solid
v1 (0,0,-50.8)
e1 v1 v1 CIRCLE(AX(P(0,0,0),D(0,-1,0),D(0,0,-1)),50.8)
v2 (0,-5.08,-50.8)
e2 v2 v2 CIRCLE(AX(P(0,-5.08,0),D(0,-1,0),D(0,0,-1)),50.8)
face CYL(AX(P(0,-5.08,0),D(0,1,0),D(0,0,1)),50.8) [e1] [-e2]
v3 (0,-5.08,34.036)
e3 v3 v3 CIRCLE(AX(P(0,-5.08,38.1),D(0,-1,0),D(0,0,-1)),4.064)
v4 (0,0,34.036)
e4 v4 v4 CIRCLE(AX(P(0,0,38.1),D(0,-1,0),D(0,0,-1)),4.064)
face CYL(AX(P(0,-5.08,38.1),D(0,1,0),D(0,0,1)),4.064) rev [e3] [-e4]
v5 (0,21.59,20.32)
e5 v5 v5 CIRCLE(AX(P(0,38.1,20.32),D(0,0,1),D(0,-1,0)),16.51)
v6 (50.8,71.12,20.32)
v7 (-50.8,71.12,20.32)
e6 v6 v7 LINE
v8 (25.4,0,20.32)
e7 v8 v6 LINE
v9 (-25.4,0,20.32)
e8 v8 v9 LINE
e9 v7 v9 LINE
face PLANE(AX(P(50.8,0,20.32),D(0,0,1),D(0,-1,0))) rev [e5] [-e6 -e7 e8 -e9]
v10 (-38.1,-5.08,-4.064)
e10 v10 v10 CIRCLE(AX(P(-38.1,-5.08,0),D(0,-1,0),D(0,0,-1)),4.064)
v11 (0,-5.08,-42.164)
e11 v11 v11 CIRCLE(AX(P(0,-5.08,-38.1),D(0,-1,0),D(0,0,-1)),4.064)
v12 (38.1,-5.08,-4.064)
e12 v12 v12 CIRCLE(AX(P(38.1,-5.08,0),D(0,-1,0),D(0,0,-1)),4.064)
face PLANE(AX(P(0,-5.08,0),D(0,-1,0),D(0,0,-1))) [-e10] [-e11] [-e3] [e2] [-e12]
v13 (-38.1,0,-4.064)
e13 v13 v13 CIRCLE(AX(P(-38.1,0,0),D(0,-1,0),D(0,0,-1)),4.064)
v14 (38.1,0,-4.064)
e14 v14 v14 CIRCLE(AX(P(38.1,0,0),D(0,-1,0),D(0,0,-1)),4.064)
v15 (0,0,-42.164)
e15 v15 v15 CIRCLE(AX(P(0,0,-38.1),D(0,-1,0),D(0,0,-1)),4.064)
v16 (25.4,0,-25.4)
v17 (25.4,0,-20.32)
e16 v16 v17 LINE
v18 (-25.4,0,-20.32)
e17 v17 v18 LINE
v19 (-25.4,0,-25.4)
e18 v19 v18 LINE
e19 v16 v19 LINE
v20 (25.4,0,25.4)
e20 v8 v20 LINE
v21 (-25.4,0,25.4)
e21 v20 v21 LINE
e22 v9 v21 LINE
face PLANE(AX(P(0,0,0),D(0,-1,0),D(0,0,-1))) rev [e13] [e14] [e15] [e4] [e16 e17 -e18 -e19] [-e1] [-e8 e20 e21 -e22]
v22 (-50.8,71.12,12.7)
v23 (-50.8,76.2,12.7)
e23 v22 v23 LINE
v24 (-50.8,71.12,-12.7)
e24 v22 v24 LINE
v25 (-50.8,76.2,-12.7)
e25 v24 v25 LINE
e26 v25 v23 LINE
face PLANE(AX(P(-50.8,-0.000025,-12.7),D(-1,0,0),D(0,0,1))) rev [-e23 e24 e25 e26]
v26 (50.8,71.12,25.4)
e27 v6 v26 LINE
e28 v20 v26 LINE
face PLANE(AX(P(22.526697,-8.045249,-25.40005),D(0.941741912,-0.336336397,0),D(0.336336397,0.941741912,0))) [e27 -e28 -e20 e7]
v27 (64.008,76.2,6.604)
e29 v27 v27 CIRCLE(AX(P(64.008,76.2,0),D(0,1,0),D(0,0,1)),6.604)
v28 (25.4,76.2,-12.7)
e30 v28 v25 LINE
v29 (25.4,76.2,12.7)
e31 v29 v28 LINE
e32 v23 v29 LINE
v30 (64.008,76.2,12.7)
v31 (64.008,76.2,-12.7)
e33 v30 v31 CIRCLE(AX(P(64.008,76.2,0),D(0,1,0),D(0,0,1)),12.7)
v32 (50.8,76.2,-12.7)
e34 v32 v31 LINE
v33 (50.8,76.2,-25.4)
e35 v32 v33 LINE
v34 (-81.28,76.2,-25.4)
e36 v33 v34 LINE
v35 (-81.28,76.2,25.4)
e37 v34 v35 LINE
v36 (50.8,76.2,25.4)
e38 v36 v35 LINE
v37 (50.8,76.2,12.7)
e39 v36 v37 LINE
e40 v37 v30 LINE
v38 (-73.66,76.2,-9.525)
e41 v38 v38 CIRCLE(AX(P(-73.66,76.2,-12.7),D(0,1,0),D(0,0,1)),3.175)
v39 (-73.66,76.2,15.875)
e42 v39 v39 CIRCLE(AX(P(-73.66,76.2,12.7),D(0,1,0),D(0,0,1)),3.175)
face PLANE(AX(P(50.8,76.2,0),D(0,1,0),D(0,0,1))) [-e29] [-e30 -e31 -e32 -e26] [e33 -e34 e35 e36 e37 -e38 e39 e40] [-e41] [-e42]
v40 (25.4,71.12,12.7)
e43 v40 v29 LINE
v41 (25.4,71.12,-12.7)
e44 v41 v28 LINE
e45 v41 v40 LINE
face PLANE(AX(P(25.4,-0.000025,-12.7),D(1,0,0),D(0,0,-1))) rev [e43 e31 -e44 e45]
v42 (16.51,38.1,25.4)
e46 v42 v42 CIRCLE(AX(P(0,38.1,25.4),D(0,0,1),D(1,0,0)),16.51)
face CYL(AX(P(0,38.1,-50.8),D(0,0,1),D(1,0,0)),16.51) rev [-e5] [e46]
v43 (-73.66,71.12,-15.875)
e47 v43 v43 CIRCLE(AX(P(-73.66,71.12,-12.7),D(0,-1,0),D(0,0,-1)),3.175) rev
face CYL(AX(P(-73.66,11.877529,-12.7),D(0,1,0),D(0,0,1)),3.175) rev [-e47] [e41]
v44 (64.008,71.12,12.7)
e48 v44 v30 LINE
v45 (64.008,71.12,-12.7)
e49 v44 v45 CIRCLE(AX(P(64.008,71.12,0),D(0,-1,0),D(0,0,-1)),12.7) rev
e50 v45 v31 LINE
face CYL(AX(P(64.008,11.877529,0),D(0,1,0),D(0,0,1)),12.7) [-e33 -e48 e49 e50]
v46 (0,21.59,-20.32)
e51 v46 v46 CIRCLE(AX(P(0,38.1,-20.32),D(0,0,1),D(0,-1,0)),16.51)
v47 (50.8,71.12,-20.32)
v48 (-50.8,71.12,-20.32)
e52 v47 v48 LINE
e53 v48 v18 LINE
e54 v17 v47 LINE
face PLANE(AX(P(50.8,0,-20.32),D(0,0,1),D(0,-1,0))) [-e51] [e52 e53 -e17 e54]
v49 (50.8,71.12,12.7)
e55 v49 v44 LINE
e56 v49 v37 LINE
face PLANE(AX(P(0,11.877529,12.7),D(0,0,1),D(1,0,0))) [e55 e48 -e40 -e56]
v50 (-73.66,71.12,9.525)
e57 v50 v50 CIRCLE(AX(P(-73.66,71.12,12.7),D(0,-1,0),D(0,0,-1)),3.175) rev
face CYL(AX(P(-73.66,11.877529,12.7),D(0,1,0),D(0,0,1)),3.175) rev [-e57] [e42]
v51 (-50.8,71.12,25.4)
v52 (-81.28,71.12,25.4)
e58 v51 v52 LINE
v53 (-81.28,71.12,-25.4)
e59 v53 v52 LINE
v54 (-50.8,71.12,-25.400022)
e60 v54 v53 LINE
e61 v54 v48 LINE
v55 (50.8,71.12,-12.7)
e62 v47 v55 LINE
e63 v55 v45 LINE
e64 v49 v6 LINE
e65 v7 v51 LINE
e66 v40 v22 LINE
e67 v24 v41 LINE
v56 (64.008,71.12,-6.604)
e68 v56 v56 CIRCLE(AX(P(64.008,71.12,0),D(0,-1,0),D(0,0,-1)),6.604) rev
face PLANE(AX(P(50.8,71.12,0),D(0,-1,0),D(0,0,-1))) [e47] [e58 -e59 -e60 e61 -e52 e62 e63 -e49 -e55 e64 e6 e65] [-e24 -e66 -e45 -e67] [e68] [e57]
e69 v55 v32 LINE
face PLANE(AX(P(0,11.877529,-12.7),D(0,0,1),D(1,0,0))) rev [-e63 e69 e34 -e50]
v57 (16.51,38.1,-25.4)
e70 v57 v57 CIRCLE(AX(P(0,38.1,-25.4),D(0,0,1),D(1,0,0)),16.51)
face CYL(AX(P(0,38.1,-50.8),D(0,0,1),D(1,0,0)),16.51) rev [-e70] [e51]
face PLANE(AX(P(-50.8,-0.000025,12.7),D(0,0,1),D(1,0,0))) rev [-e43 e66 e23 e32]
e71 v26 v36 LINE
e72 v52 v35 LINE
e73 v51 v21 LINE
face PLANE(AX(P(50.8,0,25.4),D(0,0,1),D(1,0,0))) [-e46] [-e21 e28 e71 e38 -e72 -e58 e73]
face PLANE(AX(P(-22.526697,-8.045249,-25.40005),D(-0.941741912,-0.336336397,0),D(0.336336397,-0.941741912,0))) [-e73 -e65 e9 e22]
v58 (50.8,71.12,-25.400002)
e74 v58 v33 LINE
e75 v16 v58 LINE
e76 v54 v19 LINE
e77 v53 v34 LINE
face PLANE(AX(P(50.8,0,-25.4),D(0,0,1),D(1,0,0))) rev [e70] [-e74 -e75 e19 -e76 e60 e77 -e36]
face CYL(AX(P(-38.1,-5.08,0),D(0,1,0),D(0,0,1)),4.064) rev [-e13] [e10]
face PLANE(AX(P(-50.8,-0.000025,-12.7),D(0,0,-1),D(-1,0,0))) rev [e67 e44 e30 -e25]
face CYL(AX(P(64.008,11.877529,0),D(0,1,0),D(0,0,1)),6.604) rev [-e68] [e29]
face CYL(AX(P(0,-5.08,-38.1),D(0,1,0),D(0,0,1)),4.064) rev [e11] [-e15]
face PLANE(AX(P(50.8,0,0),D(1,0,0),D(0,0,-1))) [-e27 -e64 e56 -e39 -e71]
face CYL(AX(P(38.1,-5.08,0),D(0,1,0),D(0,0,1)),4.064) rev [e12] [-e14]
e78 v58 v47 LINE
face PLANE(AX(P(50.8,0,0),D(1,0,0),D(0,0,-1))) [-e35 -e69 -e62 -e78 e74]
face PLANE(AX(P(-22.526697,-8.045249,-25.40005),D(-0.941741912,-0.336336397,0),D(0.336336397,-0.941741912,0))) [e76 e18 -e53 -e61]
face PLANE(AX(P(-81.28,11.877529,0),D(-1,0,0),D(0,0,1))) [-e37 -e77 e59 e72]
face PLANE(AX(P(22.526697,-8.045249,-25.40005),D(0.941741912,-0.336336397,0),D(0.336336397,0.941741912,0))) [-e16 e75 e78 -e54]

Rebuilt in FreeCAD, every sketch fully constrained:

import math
import FreeCAD as App
import Part
import Sketcher
Q = App.Units.Quantity


def add_polygon(sketch, points):
    """Adds a closed chain of lines whose ends are joined by coincident constraints."""
    first, n = sketch.GeometryCount, len(points)
    for a, b in zip(points, points[1:] + points[:1]):
        sketch.addGeometry(Part.LineSegment(App.Vector(*a, 0), App.Vector(*b, 0)), False)
    for i in range(n):
        sketch.addConstraint(Sketcher.Constraint("Coincident", first + i, 2, first + (i + 1) % n, 1))

doc = App.newDocument("Part")
body = doc.addObject("PartDesign::Body", "Body")

# Sketch on YZ plane
sketch1 = doc.addObject("Sketcher::SketchObject", "Sketch")
body.addObject(sketch1)
sketch1.AttachmentSupport = (doc.YZ_Plane, [""])
sketch1.MapMode = "FlatFace"
add_polygon(sketch1, [(0, 25.4), (0, 20.32), (71.12, 20.32), (71.12, -20.32), (0, -20.32), (0, -25.4), (76.2, -25.4), (76.2, 25.4)])  # lines 0-7
sketch1.addConstraint(Sketcher.Constraint("Vertical", 0))
sketch1.addConstraint(Sketcher.Constraint("Horizontal", 1))
sketch1.addConstraint(Sketcher.Constraint("Vertical", 2))
sketch1.addConstraint(Sketcher.Constraint("Horizontal", 3))
sketch1.addConstraint(Sketcher.Constraint("Vertical", 4))
sketch1.addConstraint(Sketcher.Constraint("Horizontal", 5))
sketch1.addConstraint(Sketcher.Constraint("Vertical", 6))
sketch1.addConstraint(Sketcher.Constraint("Horizontal", 7))
sketch1.addConstraint(Sketcher.Constraint("Symmetric", 0, 2, 3, 2, -1, 1))
sketch1.addConstraint(Sketcher.Constraint("Symmetric", 4, 2, 7, 2, -1))
sketch1.addConstraint(Sketcher.Constraint("DistanceX", 5, 1, 5, 2, Q("3 in")))
sketch1.addConstraint(Sketcher.Constraint("DistanceY", 6, 1, 6, 2, Q("2 in")))
sketch1.addConstraint(Sketcher.Constraint("DistanceX", 1, 1, 1, 2, Q("2.8 in")))
sketch1.addConstraint(Sketcher.Constraint("DistanceY", 0, 2, 0, 1, Q("0.2 in")))
pad1 = doc.addObject("PartDesign::Pad", "Pad")
body.addObject(pad1)
pad1.Profile = sketch1
pad1.Length = Q("4 in")
pad1.Midplane = True

# Sketch on XZ plane
sketch2 = doc.addObject("Sketcher::SketchObject", "Sketch001")
body.addObject(sketch2)
sketch2.AttachmentSupport = (doc.XZ_Plane, [""])
sketch2.MapMode = "FlatFace"
sketch2.AttachmentOffset = App.Placement(App.Vector(0, 0, -3 * 25.4), App.Rotation())
add_polygon(sketch2, [(-81.28, -25.4), (-81.28, 25.4), (-50.8, 25.4), (-50.8, -25.4)])  # lines 0-3
sketch2.addGeometry(Part.Circle(App.Vector(-73.66, 12.7, 0), App.Vector(0, 0, 1), 3.175), False)  # 4
sketch2.addGeometry(Part.Circle(App.Vector(-73.66, -12.7, 0), App.Vector(0, 0, 1), 3.175), False)  # 5
sketch2.addGeometry(Part.LineSegment(App.Vector(64.008, -12.7, 0), App.Vector(50.8, -12.7, 0)), False)  # 6
sketch2.addGeometry(Part.LineSegment(App.Vector(50.8, -12.7, 0), App.Vector(50.8, 12.7, 0)), False)  # 7
sketch2.addGeometry(Part.LineSegment(App.Vector(50.8, 12.7, 0), App.Vector(64.008, 12.7, 0)), False)  # 8
sketch2.addGeometry(Part.ArcOfCircle(Part.Circle(App.Vector(64.008, 0, 0), App.Vector(0, 0, 1), 12.7), math.radians(-90), math.radians(90)), False)  # 9
sketch2.addGeometry(Part.Circle(App.Vector(64.008, 0, 0), App.Vector(0, 0, 1), 6.604), False)  # 10
sketch2.addConstraint(Sketcher.Constraint("Coincident", 6, 2, 7, 1))
sketch2.addConstraint(Sketcher.Constraint("Coincident", 7, 2, 8, 1))
sketch2.addConstraint(Sketcher.Constraint("Tangent", 8, 2, 9, 2))
sketch2.addConstraint(Sketcher.Constraint("Tangent", 9, 1, 6, 1))
sketch2.addConstraint(Sketcher.Constraint("Vertical", 0))
sketch2.addConstraint(Sketcher.Constraint("Horizontal", 1))
sketch2.addConstraint(Sketcher.Constraint("Vertical", 2))
sketch2.addConstraint(Sketcher.Constraint("Horizontal", 3))
sketch2.addConstraint(Sketcher.Constraint("Horizontal", 6))
sketch2.addConstraint(Sketcher.Constraint("Vertical", 7))
sketch2.addConstraint(Sketcher.Constraint("Horizontal", 8))
sketch2.addConstraint(Sketcher.Constraint("Coincident", 10, 3, 9, 3))
sketch2.addConstraint(Sketcher.Constraint("Equal", 4, 5))
sketch2.addConstraint(Sketcher.Constraint("Symmetric", 4, 3, 5, 3, -1))
sketch2.addConstraint(Sketcher.Constraint("PointOnObject", 9, 3, -1))
sketch2.addConstraint(Sketcher.Constraint("Horizontal", 5, 3, 6, 2))
sketch2.addConstraint(Sketcher.Constraint("Radius", 9, Q("0.5 in")))
sketch2.addConstraint(Sketcher.Constraint("Diameter", 4, Q("0.25 in")))
sketch2.addConstraint(Sketcher.Constraint("Diameter", 10, Q("0.52 in")))
sketch2.addConstraint(Sketcher.Constraint("DistanceY", 0, 1, 0, 2, Q("2 in")))
sketch2.addConstraint(Sketcher.Constraint("DistanceX", 1, 1, 1, 2, Q("1.2 in")))
sketch2.addConstraint(Sketcher.Constraint("DistanceY", -1, 1, 0, 2, Q("1 in")))
sketch2.addConstraint(Sketcher.Constraint("DistanceX", 1, 2, -1, 1, Q("2 in")))
sketch2.addConstraint(Sketcher.Constraint("DistanceX", -1, 1, 6, 2, Q("2 in")))
sketch2.addConstraint(Sketcher.Constraint("DistanceX", 6, 2, 6, 1, Q("0.52 in")))
sketch2.addConstraint(Sketcher.Constraint("DistanceX", 4, 3, -1, 1, Q("2.9 in")))
pad2 = doc.addObject("PartDesign::Pad", "Pad001")
body.addObject(pad2)
pad2.Profile = sketch2
pad2.Length = Q("0.2 in")

# Sketch on XZ plane
sketch3 = doc.addObject("Sketcher::SketchObject", "Sketch002")
body.addObject(sketch3)
sketch3.AttachmentSupport = (doc.XZ_Plane, [""])
sketch3.MapMode = "FlatFace"
sketch3.AttachmentOffset = App.Placement(App.Vector(0, 0, -3 * 25.4), App.Rotation())
add_polygon(sketch3, [(-50.8, -12.7), (-50.8, 12.7), (25.4, 12.7), (25.4, -12.7)])  # lines 0-3
sketch3.addConstraint(Sketcher.Constraint("Vertical", 0))
sketch3.addConstraint(Sketcher.Constraint("Horizontal", 1))
sketch3.addConstraint(Sketcher.Constraint("Vertical", 2))
sketch3.addConstraint(Sketcher.Constraint("Horizontal", 3))
sketch3.addConstraint(Sketcher.Constraint("DistanceX", 1, 1, 1, 2, Q("3 in")))
sketch3.addConstraint(Sketcher.Constraint("DistanceY", 0, 1, 0, 2, Q("1 in")))
sketch3.addConstraint(Sketcher.Constraint("DistanceX", 0, 2, -1, 1, Q("2 in")))
sketch3.addConstraint(Sketcher.Constraint("DistanceY", -1, 1, 0, 2, Q("0.5 in")))
pocket1 = doc.addObject("PartDesign::Pocket", "Pocket")
body.addObject(pocket1)
pocket1.Profile = sketch3
pocket1.Type = "ThroughAll"
pocket1.Reversed = True

# Sketch on XY plane
sketch4 = doc.addObject("Sketcher::SketchObject", "Sketch003")
body.addObject(sketch4)
sketch4.AttachmentSupport = (doc.XY_Plane, [""])
sketch4.MapMode = "FlatFace"
sketch4.AttachmentOffset = App.Placement(App.Vector(0, 0, 1 * 25.4), App.Rotation())
add_polygon(sketch4, [(-25.4, 0), (-50.8, 71.12), (-50.8, 0)])  # lines 0-2
add_polygon(sketch4, [(50.8, 71.12), (25.4, 0), (50.8, 0)])  # lines 3-5
sketch4.addConstraint(Sketcher.Constraint("Vertical", 1))
sketch4.addConstraint(Sketcher.Constraint("Horizontal", 2))
sketch4.addConstraint(Sketcher.Constraint("Horizontal", 4))
sketch4.addConstraint(Sketcher.Constraint("Vertical", 5))
sketch4.addConstraint(Sketcher.Constraint("Symmetric", 2, 2, 3, 2, -1, 1))
sketch4.addConstraint(Sketcher.Constraint("Symmetric", 1, 2, 4, 2, -2))
sketch4.addConstraint(Sketcher.Constraint("Horizontal", 0, 2, 5, 2))
sketch4.addConstraint(Sketcher.Constraint("DistanceX", 2, 1, 2, 2, Q("1 in")))
sketch4.addConstraint(Sketcher.Constraint("DistanceY", 1, 2, 1, 1, Q("2.8 in")))
sketch4.addConstraint(Sketcher.Constraint("DistanceX", 0, 2, -1, 1, Q("2 in")))
pocket2 = doc.addObject("PartDesign::Pocket", "Pocket001")
body.addObject(pocket2)
pocket2.Profile = sketch4
pocket2.Type = "ThroughAll"

# Sketch on XZ plane
sketch5 = doc.addObject("Sketcher::SketchObject", "Sketch004")
body.addObject(sketch5)
sketch5.AttachmentSupport = (doc.XZ_Plane, [""])
sketch5.MapMode = "FlatFace"
sketch5.addGeometry(Part.ArcOfCircle(Part.Circle(App.Vector(0, 0, 0), App.Vector(0, 0, 1), 50.8), math.radians(30), math.radians(150)), False)
sketch5.addGeometry(Part.ArcOfCircle(Part.Circle(App.Vector(0, 0, 0), App.Vector(0, 0, 1), 50.8), math.radians(150), math.radians(156.421822)), False)
sketch5.addGeometry(Part.ArcOfCircle(Part.Circle(App.Vector(0, 0, 0), App.Vector(0, 0, 1), 50.8), math.radians(156.421822), math.radians(180)), False)
sketch5.addGeometry(Part.ArcOfCircle(Part.Circle(App.Vector(0, 0, 0), App.Vector(0, 0, 1), 50.8), math.radians(180), math.radians(383.578178)), False)
sketch5.addGeometry(Part.ArcOfCircle(Part.Circle(App.Vector(0, 0, 0), App.Vector(0, 0, 1), 50.8), math.radians(23.578178), math.radians(30)), False)
sketch5.addGeometry(Part.ArcOfCircle(Part.Circle(App.Vector(0, 38.1, 0), App.Vector(0, 0, 1), 4.064), math.radians(-3.057225), math.radians(180)), False)
sketch5.addGeometry(Part.ArcOfCircle(Part.Circle(App.Vector(0, 38.1, 0), App.Vector(0, 0, 1), 4.064), math.radians(-176.942775), math.radians(-3.057225)), False)
sketch5.addGeometry(Part.ArcOfCircle(Part.Circle(App.Vector(0, 38.1, 0), App.Vector(0, 0, 1), 4.064), math.radians(180), math.radians(183.057225)), False)
sketch5.addGeometry(Part.ArcOfCircle(Part.Circle(App.Vector(38.1, 0, 0), App.Vector(0, 0, 1), 4.064), math.radians(-93.057225), math.radians(93.057225)), False)
sketch5.addGeometry(Part.ArcOfCircle(Part.Circle(App.Vector(38.1, 0, 0), App.Vector(0, 0, 1), 4.064), math.radians(180), math.radians(266.942775)), False)
sketch5.addGeometry(Part.ArcOfCircle(Part.Circle(App.Vector(38.1, 0, 0), App.Vector(0, 0, 1), 4.064), math.radians(93.057225), math.radians(180)), False)
sketch5.addGeometry(Part.ArcOfCircle(Part.Circle(App.Vector(-38.1, 0, 0), App.Vector(0, 0, 1), 4.064), math.radians(-86.942775), math.radians(86.942775)), False)
sketch5.addGeometry(Part.ArcOfCircle(Part.Circle(App.Vector(-38.1, 0, 0), App.Vector(0, 0, 1), 4.064), math.radians(180), math.radians(273.057225)), False)
sketch5.addGeometry(Part.ArcOfCircle(Part.Circle(App.Vector(-38.1, 0, 0), App.Vector(0, 0, 1), 4.064), math.radians(86.942775), math.radians(180)), False)
sketch5.addGeometry(Part.ArcOfCircle(Part.Circle(App.Vector(0, -38.1, 0), App.Vector(0, 0, 1), 4.064), math.radians(180), math.radians(363.057225)), False)
sketch5.addGeometry(Part.ArcOfCircle(Part.Circle(App.Vector(0, -38.1, 0), App.Vector(0, 0, 1), 4.064), math.radians(176.942775), math.radians(180)), False)
sketch5.addGeometry(Part.ArcOfCircle(Part.Circle(App.Vector(0, -38.1, 0), App.Vector(0, 0, 1), 4.064), math.radians(3.057225), math.radians(176.942775)), False)
sketch5.addConstraint(Sketcher.Constraint("Tangent", 0, 2, 1, 1))
sketch5.addConstraint(Sketcher.Constraint("Tangent", 1, 2, 2, 1))
sketch5.addConstraint(Sketcher.Constraint("Tangent", 2, 2, 3, 1))
sketch5.addConstraint(Sketcher.Constraint("Tangent", 3, 2, 4, 1))
sketch5.addConstraint(Sketcher.Constraint("Tangent", 4, 2, 0, 1))
sketch5.addConstraint(Sketcher.Constraint("Tangent", 5, 1, 6, 2))
sketch5.addConstraint(Sketcher.Constraint("Tangent", 6, 1, 7, 2))
sketch5.addConstraint(Sketcher.Constraint("Tangent", 7, 1, 5, 2))
sketch5.addConstraint(Sketcher.Constraint("Tangent", 8, 1, 9, 2))
sketch5.addConstraint(Sketcher.Constraint("Tangent", 9, 1, 10, 2))
sketch5.addConstraint(Sketcher.Constraint("Tangent", 10, 1, 8, 2))
sketch5.addConstraint(Sketcher.Constraint("Tangent", 11, 1, 12, 2))
sketch5.addConstraint(Sketcher.Constraint("Tangent", 12, 1, 13, 2))
sketch5.addConstraint(Sketcher.Constraint("Tangent", 13, 1, 11, 2))
sketch5.addConstraint(Sketcher.Constraint("Tangent", 14, 1, 15, 2))
sketch5.addConstraint(Sketcher.Constraint("Tangent", 15, 1, 16, 2))
sketch5.addConstraint(Sketcher.Constraint("Tangent", 16, 1, 14, 2))
sketch5.addConstraint(Sketcher.Constraint("Coincident", 0, 3, -1, 1))
sketch5.addConstraint(Sketcher.Constraint("Coincident", 2, 3, -1, 1))
sketch5.addConstraint(Sketcher.Constraint("Equal", 7, 8))
sketch5.addConstraint(Sketcher.Constraint("Equal", 10, 11))
sketch5.addConstraint(Sketcher.Constraint("Equal", 13, 14))
sketch5.addConstraint(Sketcher.Constraint("Symmetric", 8, 3, 11, 3, -1, 1))
sketch5.addConstraint(Sketcher.Constraint("Symmetric", 5, 3, 14, 3, -1, 1))
sketch5.addConstraint(Sketcher.Constraint("Symmetric", 5, 1, 6, 1, -2))
sketch5.addConstraint(Sketcher.Constraint("Symmetric", 8, 1, 11, 1, -2))
sketch5.addConstraint(Sketcher.Constraint("PointOnObject", 2, 2, -1))
sketch5.addConstraint(Sketcher.Constraint("PointOnObject", 9, 1, -1))
sketch5.addConstraint(Sketcher.Constraint("PointOnObject", 12, 1, -1))
sketch5.addConstraint(Sketcher.Constraint("Horizontal", 1, 2, 3, 2))
sketch5.addConstraint(Sketcher.Constraint("Horizontal", 0, 2, 4, 2))
sketch5.addConstraint(Sketcher.Constraint("Horizontal", 6, 3, 7, 1))
sketch5.addConstraint(Sketcher.Constraint("Horizontal", 10, 1, 13, 1))
sketch5.addConstraint(Sketcher.Constraint("Horizontal", 16, 3, 14, 1))
sketch5.addConstraint(Sketcher.Constraint("Horizontal", 15, 1, 16, 1))
sketch5.addConstraint(Sketcher.Constraint("Vertical", 8, 1, 10, 1))
sketch5.addConstraint(Sketcher.Constraint("Vertical", 6, 1, 15, 1))
sketch5.addConstraint(Sketcher.Constraint("Radius", 0, Q("2 in")))
sketch5.addConstraint(Sketcher.Constraint("Radius", 5, Q("0.16 in")))
sketch5.addConstraint(Sketcher.Constraint("DistanceY", -1, 1, 0, 2, Q("1 in")))
sketch5.addConstraint(Sketcher.Constraint("DistanceY", -1, 1, 5, 3, Q("1.5 in")))
sketch5.addConstraint(Sketcher.Constraint("DistanceX", -1, 1, 8, 3, Q("1.5 in")))
sketch5.addConstraint(Sketcher.Constraint("DistanceY", -1, 1, 1, 2, Q("0.8 in")))
sketch5.addConstraint(Sketcher.Constraint("DistanceX", 6, 1, 5, 1, 8.116432))
sketch5.addConstraint(Sketcher.Constraint("DistanceY", 8, 1, 10, 1, 8.116432))
pad3 = doc.addObject("PartDesign::Pad", "Pad002")
body.addObject(pad3)
pad3.Profile = sketch5
pad3.Length = Q("0.2 in")

# Sketch on XY plane
sketch6 = doc.addObject("Sketcher::SketchObject", "Sketch005")
body.addObject(sketch6)
sketch6.AttachmentSupport = (doc.XY_Plane, [""])
sketch6.MapMode = "FlatFace"
sketch6.AttachmentOffset = App.Placement(App.Vector(0, 0, 1 * 25.4), App.Rotation())
sketch6.addGeometry(Part.Circle(App.Vector(0, 38.1, 0), App.Vector(0, 0, 1), 16.51), False)
sketch6.addConstraint(Sketcher.Constraint("PointOnObject", 0, 3, -2))
sketch6.addConstraint(Sketcher.Constraint("Diameter", 0, Q("1.3 in")))
sketch6.addConstraint(Sketcher.Constraint("DistanceY", -1, 1, 0, 3, Q("1.5 in")))
pocket3 = doc.addObject("PartDesign::Pocket", "Pocket002")
body.addObject(pocket3)
pocket3.Profile = sketch6
pocket3.Type = "ThroughAll"

doc.recompute()
